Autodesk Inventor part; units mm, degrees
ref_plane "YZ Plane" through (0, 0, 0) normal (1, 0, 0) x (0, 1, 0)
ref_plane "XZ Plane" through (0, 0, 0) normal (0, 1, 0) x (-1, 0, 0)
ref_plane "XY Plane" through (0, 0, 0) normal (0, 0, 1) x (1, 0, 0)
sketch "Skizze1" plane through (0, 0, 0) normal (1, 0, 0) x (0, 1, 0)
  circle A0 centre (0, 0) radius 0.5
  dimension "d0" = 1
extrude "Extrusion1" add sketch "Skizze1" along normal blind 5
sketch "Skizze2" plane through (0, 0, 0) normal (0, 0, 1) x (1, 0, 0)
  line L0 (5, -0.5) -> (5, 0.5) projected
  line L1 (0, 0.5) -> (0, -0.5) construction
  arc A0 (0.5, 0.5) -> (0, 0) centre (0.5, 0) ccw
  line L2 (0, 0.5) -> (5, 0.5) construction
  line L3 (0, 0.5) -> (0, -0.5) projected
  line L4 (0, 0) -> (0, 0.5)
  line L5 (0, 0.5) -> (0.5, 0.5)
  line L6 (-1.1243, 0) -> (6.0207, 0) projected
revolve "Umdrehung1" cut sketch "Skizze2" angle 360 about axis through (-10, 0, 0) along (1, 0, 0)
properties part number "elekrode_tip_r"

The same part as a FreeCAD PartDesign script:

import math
import FreeCAD as App
import Part
import Sketcher
from FreeCAD import Vector

doc = App.newDocument("Part")
body = doc.addObject("PartDesign::Body", "Body")

# Sketch on YZ plane
sketch1 = body.newObject("Sketcher::SketchObject", "Sketch")
sketch1.AttachmentSupport = (doc.getObject("YZ_Plane"), [""])
sketch1.MapMode = "FlatFace"
sketch1.addGeometry(Part.Circle(Vector(0, 0, 0), Vector(0, 0, 1), 0.5), False)
sketch1.addConstraint([
    Sketcher.Constraint("Coincident", 0, 3, -1, 1),
    Sketcher.Constraint("Diameter", 0, 1.0),
])
pad1 = body.newObject("PartDesign::Pad", "Pad")
pad1.Profile = sketch1
pad1.Length = 5

# Sketch on XY plane
sketch2 = body.newObject("Sketcher::SketchObject", "Sketch001")
sketch2.AttachmentSupport = (doc.getObject("XY_Plane"), [""])
sketch2.MapMode = "FlatFace"
sketch2.addGeometry([
    Part.ArcOfCircle(Part.Circle(Vector(0.5, 0, 0), Vector(0, 0, 1), 0.5), math.radians(90), math.radians(180)),
    Part.LineSegment(Vector(0.5, 0.5, 0), Vector(0, 0.5, 0)),
    Part.LineSegment(Vector(0, 0.5, 0), Vector(0, 0, 0)),
], False)
sketch2.addConstraint([
    Sketcher.Constraint("Tangent", 0, 1, 1, 1),
    Sketcher.Constraint("Coincident", 1, 2, 2, 1),
    Sketcher.Constraint("Tangent", 2, 2, 0, 2),
    Sketcher.Constraint("Horizontal", 1),
    Sketcher.Constraint("Vertical", 2),
    Sketcher.Constraint("Coincident", 2, 2, -1, 1),
    Sketcher.Constraint("Radius", 0, 0.5),
])
groove = body.newObject("PartDesign::Groove", "Groove")
groove.Profile = sketch2
groove.ReferenceAxis = (sketch2, ["H_Axis"])
groove.Angle = 360

doc.recompute()
